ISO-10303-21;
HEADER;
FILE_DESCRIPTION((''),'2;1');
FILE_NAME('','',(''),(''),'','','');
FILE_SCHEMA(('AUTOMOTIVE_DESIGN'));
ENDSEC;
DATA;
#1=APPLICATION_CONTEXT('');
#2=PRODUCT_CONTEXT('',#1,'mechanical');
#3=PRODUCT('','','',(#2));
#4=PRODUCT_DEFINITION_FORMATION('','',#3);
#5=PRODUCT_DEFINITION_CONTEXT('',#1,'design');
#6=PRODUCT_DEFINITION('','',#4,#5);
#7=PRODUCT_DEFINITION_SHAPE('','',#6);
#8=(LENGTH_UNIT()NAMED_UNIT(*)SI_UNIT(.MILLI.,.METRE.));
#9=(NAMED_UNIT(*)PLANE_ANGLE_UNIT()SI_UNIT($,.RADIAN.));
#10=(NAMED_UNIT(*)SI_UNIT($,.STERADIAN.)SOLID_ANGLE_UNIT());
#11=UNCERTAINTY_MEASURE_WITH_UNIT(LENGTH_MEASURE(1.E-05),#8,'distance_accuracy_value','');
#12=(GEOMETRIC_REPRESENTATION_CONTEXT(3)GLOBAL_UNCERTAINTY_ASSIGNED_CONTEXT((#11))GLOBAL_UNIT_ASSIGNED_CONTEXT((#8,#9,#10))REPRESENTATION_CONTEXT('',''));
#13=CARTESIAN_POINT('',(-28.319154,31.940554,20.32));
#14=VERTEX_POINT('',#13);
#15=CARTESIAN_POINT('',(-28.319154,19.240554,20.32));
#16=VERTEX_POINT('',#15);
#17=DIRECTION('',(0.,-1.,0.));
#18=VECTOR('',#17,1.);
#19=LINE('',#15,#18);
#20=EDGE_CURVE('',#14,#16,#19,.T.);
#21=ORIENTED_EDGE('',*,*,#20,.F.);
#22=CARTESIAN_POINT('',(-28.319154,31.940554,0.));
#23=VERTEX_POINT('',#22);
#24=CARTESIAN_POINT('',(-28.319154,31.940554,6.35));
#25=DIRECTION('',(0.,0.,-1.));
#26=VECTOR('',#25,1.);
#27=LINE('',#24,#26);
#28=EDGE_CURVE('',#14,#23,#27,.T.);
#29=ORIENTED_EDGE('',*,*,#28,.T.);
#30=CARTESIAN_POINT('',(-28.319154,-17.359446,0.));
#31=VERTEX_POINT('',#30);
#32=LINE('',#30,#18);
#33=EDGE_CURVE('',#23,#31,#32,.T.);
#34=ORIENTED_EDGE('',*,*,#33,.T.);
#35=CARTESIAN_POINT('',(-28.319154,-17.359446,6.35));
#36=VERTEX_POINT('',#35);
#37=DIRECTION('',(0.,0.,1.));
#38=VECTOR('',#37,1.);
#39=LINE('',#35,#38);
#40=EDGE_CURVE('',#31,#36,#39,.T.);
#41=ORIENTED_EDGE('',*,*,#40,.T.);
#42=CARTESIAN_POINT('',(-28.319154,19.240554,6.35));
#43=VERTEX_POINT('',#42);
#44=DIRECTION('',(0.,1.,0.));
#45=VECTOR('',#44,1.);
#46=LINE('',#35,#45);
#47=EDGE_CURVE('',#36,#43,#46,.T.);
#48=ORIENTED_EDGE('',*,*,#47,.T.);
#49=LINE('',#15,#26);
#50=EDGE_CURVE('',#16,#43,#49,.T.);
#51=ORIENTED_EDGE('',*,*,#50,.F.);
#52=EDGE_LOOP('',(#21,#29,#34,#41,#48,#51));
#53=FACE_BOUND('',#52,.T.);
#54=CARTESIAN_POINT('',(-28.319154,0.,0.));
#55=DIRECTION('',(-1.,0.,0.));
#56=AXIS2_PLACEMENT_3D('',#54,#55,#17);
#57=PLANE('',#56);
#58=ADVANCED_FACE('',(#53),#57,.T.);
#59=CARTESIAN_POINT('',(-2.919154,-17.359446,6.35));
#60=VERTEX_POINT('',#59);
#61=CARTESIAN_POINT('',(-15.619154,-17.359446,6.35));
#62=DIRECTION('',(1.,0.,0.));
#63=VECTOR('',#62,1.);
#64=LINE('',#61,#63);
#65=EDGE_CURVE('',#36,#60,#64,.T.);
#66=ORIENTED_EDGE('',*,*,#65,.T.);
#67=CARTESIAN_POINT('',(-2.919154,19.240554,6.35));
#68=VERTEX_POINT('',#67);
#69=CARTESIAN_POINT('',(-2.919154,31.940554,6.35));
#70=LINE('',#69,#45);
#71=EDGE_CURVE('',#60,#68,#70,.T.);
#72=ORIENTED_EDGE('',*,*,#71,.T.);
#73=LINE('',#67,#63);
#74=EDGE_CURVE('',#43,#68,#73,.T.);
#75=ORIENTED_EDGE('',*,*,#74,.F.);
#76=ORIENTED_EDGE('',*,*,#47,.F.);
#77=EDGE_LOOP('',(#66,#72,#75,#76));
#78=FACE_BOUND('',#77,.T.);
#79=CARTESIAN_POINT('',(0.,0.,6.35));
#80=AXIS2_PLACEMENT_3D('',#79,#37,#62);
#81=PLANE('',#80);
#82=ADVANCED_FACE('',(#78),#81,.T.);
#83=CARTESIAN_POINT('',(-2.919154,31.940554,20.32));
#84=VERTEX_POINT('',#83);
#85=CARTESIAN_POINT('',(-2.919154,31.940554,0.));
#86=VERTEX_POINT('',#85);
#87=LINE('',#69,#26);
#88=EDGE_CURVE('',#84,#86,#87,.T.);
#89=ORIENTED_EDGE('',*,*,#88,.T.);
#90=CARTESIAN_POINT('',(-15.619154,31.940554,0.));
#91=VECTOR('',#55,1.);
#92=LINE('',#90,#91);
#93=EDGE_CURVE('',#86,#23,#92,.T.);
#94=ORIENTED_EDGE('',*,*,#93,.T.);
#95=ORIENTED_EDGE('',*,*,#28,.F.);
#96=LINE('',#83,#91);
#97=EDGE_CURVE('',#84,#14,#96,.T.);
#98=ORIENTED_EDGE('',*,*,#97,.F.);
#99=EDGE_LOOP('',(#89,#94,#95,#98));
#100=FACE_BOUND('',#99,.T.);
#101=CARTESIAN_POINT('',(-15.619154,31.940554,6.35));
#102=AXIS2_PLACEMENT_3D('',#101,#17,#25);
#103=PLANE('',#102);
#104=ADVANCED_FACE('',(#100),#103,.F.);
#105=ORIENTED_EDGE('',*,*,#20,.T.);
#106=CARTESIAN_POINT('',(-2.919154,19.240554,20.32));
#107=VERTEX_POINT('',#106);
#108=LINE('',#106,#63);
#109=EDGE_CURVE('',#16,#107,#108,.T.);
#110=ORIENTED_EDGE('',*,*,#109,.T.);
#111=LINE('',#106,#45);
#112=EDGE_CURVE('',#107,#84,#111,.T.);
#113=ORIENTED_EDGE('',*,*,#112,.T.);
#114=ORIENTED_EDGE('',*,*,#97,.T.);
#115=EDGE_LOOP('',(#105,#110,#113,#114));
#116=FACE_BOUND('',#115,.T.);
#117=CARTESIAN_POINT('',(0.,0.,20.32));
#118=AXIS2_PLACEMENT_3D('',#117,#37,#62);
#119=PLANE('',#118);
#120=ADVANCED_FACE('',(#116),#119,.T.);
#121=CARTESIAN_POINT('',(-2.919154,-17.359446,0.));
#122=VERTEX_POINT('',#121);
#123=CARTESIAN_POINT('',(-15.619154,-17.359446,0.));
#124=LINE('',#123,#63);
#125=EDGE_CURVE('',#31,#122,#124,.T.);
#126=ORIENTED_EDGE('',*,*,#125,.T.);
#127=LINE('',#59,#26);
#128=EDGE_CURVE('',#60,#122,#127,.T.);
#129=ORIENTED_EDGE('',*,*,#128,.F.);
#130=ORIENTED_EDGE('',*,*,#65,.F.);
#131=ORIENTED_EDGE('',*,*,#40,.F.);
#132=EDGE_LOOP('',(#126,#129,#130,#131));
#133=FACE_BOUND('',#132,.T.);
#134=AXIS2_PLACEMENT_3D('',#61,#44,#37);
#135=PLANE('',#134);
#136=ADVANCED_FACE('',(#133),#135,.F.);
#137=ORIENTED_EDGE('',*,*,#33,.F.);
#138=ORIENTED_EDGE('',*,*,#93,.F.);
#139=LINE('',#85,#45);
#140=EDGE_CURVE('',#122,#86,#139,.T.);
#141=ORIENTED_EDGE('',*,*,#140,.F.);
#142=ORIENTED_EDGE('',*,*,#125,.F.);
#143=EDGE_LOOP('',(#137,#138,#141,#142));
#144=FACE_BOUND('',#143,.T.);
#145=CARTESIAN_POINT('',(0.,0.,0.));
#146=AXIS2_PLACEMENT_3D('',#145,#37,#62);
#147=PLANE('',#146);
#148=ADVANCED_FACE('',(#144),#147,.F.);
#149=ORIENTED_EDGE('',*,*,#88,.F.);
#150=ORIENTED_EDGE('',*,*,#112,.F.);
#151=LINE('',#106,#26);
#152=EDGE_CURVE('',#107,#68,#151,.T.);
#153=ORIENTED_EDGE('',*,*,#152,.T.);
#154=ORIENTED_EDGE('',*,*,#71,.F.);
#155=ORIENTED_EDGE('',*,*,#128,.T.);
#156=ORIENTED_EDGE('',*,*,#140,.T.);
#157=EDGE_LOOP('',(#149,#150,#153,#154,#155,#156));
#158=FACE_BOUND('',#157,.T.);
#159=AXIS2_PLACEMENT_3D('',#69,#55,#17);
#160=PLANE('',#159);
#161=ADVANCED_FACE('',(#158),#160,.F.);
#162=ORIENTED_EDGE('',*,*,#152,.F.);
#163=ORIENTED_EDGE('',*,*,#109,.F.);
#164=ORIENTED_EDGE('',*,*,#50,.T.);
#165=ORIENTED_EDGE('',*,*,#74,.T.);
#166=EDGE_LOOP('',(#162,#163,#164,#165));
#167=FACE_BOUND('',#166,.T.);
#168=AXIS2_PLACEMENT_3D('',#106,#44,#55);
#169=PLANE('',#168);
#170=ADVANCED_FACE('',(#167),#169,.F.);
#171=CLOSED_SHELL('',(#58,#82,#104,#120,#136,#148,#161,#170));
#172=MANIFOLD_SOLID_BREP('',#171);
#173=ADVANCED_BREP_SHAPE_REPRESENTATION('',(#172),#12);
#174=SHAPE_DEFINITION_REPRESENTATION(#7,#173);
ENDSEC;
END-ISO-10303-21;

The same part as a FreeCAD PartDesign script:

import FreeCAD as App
import Part
import Sketcher
Q = App.Units.Quantity


def add_polygon(sketch, points):
    """Adds a closed chain of lines whose ends are joined by coincident constraints."""
    first, n = sketch.GeometryCount, len(points)
    for a, b in zip(points, points[1:] + points[:1]):
        sketch.addGeometry(Part.LineSegment(App.Vector(*a, 0), App.Vector(*b, 0)), False)
    for i in range(n):
        sketch.addConstraint(Sketcher.Constraint("Coincident", first + i, 2, first + (i + 1) % n, 1))

doc = App.newDocument("Part")
body = doc.addObject("PartDesign::Body", "Body")

# Sketch on XY plane
sketch1 = body.newObject("Sketcher::SketchObject", "Sketch")
sketch1.AttachmentSupport = (doc.getObject("XY_Plane"), [""])
sketch1.MapMode = "FlatFace"
add_polygon(sketch1, [(-16, 32), (-16, -17), (-3, -17), (-3, 32)])  # lines 0-3
sketch1.addConstraint([
    Sketcher.Constraint("Vertical", 0),
    Sketcher.Constraint("Horizontal", 1),
    Sketcher.Constraint("Vertical", 2),
    Sketcher.Constraint("Horizontal", 3),
    Sketcher.Constraint("DistanceX", 1, 1, 1, 2, Q("0.5 in")),
    Sketcher.Constraint("DistanceY", 0, 2, 0, 1, 49.3),
    Sketcher.Constraint("DistanceX", 0, 2, -1, 1, 15.619154),
    Sketcher.Constraint("DistanceY", 0, 2, -1, 1, 17.359446),
])
pad1 = body.newObject("PartDesign::Pad", "Pad")
pad1.Profile = sketch1
pad1.Length = Q("0.25 in")

# Sketch on YZ plane
sketch2 = body.newObject("Sketcher::SketchObject", "Sketch001")
sketch2.AttachmentSupport = (doc.getObject("YZ_Plane"), [""])
sketch2.MapMode = "FlatFace"
sketch2.AttachmentOffset = App.Placement(App.Vector(0, 0, -15.619154), App.Rotation())
add_polygon(sketch2, [(32, 0), (-17, 0), (-17, 6), (32, 6)])  # lines 0-3
sketch2.addConstraint([
    Sketcher.Constraint("Horizontal", 0),
    Sketcher.Constraint("Vertical", 1),
    Sketcher.Constraint("Horizontal", 2),
    Sketcher.Constraint("Vertical", 3),
    Sketcher.Constraint("PointOnObject", 0, 2, -1),
    Sketcher.Constraint("DistanceY", 1, 1, 1, 2, Q("0.25 in")),
    Sketcher.Constraint("DistanceX", 0, 2, 0, 1, 49.3),
    Sketcher.Constraint("DistanceX", 0, 2, -1, 1, 17.359446),
])
pad2 = body.newObject("PartDesign::Pad", "Pad001")
pad2.Profile = sketch2
pad2.Length = Q("0.5 in")
pad2.Reversed = True

# Sketch on XY plane
sketch3 = body.newObject("Sketcher::SketchObject", "Sketch002")
sketch3.AttachmentSupport = (doc.getObject("XY_Plane"), [""])
sketch3.MapMode = "FlatFace"
sketch3.AttachmentOffset = App.Placement(App.Vector(0, 0, 0.25 * 25.4), App.Rotation())
add_polygon(sketch3, [(-28, 32), (-28, 19), (-3, 19), (-3, 32)])  # lines 0-3
sketch3.addConstraint([
    Sketcher.Constraint("Vertical", 0),
    Sketcher.Constraint("Horizontal", 1),
    Sketcher.Constraint("Vertical", 2),
    Sketcher.Constraint("Horizontal", 3),
    Sketcher.Constraint("DistanceX", 1, 1, 1, 2, Q("1 in")),
    Sketcher.Constraint("DistanceY", 0, 2, 0, 1, Q("0.5 in")),
    Sketcher.Constraint("DistanceX", 0, 2, -1, 1, 28.319154),
    Sketcher.Constraint("DistanceY", -1, 1, 0, 2, 19.240554),
])
pad3 = body.newObject("PartDesign::Pad", "Pad002")
pad3.Profile = sketch3
pad3.Length = Q("0.55 in")

doc.recompute()
